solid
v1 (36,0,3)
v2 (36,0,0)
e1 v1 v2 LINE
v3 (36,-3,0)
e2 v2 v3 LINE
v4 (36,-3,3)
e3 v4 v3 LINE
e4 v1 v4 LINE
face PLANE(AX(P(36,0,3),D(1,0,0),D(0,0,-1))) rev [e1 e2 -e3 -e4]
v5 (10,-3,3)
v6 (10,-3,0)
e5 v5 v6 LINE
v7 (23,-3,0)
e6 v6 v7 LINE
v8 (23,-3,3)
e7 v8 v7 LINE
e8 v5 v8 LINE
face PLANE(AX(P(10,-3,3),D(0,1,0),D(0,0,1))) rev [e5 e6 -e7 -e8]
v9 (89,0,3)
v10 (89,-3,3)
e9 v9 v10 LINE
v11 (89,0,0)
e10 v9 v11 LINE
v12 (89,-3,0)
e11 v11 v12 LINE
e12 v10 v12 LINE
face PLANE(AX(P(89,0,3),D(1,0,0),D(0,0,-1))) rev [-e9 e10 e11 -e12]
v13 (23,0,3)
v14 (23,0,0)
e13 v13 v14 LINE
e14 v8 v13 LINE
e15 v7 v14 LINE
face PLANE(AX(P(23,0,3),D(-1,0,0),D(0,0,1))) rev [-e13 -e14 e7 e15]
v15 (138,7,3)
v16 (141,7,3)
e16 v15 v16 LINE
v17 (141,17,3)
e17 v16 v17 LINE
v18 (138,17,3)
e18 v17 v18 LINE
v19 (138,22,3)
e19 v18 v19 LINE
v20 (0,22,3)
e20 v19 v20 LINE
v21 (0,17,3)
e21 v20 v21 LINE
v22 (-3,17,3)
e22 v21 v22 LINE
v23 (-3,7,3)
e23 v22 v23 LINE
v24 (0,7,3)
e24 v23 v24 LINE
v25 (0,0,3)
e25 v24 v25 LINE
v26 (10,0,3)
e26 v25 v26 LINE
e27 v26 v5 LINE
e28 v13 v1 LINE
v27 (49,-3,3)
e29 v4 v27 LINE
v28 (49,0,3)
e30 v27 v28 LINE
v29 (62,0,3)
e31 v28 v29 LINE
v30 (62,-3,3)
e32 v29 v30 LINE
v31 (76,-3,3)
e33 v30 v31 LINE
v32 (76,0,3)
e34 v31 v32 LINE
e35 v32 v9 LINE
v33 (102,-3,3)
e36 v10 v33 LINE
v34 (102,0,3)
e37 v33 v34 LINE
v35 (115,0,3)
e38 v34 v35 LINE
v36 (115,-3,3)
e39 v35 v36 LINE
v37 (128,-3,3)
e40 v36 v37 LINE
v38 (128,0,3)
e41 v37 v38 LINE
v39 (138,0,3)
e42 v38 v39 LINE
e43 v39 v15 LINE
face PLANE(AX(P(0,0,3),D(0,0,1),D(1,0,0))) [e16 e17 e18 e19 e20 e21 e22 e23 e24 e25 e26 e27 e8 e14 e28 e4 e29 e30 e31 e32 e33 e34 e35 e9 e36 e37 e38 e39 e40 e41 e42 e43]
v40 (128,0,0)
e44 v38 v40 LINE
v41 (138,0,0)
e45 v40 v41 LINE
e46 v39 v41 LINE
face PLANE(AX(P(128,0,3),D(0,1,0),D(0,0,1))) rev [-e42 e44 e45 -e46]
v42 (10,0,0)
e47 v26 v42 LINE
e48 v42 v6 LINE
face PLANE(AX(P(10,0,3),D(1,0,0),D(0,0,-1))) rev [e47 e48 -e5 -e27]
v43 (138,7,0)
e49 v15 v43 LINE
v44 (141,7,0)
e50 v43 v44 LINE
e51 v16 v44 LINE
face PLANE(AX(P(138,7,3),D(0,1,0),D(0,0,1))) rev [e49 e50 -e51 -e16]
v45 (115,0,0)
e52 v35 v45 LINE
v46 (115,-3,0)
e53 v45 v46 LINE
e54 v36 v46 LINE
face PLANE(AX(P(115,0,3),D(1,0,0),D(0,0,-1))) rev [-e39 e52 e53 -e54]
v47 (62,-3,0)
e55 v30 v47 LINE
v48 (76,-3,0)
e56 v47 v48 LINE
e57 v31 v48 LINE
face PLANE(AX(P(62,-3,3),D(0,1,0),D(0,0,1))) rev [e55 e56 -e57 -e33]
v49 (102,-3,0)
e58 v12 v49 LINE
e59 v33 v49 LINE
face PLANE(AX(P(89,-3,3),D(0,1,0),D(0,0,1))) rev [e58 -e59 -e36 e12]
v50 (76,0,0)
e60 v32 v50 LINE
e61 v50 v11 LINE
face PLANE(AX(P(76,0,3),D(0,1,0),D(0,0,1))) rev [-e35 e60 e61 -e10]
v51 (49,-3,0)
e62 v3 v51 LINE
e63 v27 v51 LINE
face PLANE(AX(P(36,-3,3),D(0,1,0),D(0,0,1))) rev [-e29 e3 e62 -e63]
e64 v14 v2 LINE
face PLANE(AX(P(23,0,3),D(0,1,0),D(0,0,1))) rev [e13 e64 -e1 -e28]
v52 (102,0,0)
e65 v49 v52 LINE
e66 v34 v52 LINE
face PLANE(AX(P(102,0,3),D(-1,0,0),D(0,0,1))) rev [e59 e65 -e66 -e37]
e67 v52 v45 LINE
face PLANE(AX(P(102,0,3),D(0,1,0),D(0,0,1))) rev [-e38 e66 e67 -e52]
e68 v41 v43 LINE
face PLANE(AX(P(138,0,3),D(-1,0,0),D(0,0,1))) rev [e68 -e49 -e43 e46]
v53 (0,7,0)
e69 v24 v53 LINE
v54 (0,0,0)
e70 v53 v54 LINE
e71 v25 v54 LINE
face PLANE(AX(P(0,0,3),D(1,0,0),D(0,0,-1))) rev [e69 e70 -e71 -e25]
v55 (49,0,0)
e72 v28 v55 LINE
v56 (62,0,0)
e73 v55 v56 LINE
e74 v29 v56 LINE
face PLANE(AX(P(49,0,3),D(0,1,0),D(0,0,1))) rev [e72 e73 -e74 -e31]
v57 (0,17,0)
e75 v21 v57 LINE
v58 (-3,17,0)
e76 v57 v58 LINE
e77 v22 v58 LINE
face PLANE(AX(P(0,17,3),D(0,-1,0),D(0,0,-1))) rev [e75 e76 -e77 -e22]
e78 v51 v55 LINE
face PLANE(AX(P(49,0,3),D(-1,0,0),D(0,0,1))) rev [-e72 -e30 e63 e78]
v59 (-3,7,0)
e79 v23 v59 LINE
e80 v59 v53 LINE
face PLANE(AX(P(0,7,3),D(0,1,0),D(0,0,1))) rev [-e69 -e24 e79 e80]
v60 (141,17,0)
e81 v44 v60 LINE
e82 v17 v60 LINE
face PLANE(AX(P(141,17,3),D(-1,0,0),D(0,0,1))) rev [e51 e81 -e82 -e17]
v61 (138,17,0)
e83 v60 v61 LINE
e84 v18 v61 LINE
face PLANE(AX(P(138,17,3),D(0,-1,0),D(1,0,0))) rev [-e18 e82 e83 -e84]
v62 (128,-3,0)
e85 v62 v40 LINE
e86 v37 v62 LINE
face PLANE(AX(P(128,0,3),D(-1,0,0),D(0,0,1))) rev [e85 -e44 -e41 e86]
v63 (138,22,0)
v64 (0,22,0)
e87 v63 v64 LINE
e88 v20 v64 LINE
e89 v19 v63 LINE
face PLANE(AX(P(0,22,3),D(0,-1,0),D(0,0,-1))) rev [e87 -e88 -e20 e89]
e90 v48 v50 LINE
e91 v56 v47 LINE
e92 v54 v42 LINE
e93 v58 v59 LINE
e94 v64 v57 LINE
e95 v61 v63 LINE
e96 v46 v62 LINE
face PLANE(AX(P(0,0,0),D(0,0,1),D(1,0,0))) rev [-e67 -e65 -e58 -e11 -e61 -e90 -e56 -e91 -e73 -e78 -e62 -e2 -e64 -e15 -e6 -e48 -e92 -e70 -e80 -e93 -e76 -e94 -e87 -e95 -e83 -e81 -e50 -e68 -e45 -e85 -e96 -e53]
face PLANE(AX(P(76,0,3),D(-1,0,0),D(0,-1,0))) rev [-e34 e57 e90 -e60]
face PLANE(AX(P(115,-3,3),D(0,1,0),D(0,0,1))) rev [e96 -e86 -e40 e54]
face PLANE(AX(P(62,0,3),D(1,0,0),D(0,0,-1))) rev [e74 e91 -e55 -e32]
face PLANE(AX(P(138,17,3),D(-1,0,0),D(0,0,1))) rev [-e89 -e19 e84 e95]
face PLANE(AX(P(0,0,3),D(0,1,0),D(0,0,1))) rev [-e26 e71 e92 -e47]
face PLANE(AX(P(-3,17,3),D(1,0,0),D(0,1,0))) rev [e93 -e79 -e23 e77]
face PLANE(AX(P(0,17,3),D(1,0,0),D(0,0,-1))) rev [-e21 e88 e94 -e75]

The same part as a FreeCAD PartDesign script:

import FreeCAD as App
import Part
import Sketcher
from FreeCAD import Vector
Q = App.Units.Quantity


def add_polygon(sketch, points):
    """Adds a closed chain of lines whose ends are joined by coincident constraints."""
    first, n = sketch.GeometryCount, len(points)
    for a, b in zip(points, points[1:] + points[:1]):
        sketch.addGeometry(Part.LineSegment(App.Vector(*a, 0), App.Vector(*b, 0)), False)
    for i in range(n):
        sketch.addConstraint(Sketcher.Constraint("Coincident", first + i, 2, first + (i + 1) % n, 1))

doc = App.newDocument("Part")
body = doc.addObject("PartDesign::Body", "Body")

sketch1 = body.newObject("Sketcher::SketchObject", "Sketch")
sketch1.AttachmentSupport = (doc.getObject("XY_Plane"), [""])
sketch1.MapMode = "FlatFace"
add_polygon(sketch1, [(0, 22), (0, 17), (-3, 17), (-3, 7), (0, 7), (0, 0), (10, 0), (10, -3), (23, -3), (23, 0), (36, 0), (36, -3), (49, -3), (49, 0), (62, 0), (62, -3), (76, -3), (76, 0), (89, 0), (89, -3), (102, -3), (102, 0), (115, 0), (115, -3), (128, -3), (128, 0), (138, 0), (138, 7), (141, 7), (141, 17), (138, 17), (138, 22)])
sketch1.addConstraint([
    Sketcher.Constraint("Vertical", 0),
    Sketcher.Constraint("Horizontal", 1),
    Sketcher.Constraint("Vertical", 2),
    Sketcher.Constraint("Horizontal", 3),
    Sketcher.Constraint("Vertical", 4),
    Sketcher.Constraint("Horizontal", 5),
    Sketcher.Constraint("Vertical", 6),
    Sketcher.Constraint("Horizontal", 7),
    Sketcher.Constraint("Vertical", 8),
    Sketcher.Constraint("Horizontal", 9),
    Sketcher.Constraint("Vertical", 10),
    Sketcher.Constraint("Horizontal", 11),
    Sketcher.Constraint("Vertical", 12),
    Sketcher.Constraint("Horizontal", 13),
    Sketcher.Constraint("Vertical", 14),
    Sketcher.Constraint("Horizontal", 15),
    Sketcher.Constraint("Vertical", 16),
    Sketcher.Constraint("Horizontal", 17),
    Sketcher.Constraint("Vertical", 18),
    Sketcher.Constraint("Horizontal", 19),
    Sketcher.Constraint("Vertical", 20),
    Sketcher.Constraint("Horizontal", 21),
    Sketcher.Constraint("Vertical", 22),
    Sketcher.Constraint("Horizontal", 23),
    Sketcher.Constraint("Vertical", 24),
    Sketcher.Constraint("Horizontal", 25),
    Sketcher.Constraint("Vertical", 26),
    Sketcher.Constraint("Horizontal", 27),
    Sketcher.Constraint("Vertical", 28),
    Sketcher.Constraint("Horizontal", 29),
    Sketcher.Constraint("Vertical", 30),
    Sketcher.Constraint("Horizontal", 31),
    Sketcher.Constraint("Coincident", 4, 2, -1, 1),
    Sketcher.Constraint("PointOnObject", 0, 2, -2),
    Sketcher.Constraint("PointOnObject", 8, 2, -1),
    Sketcher.Constraint("PointOnObject", 12, 2, -1),
    Sketcher.Constraint("PointOnObject", 16, 2, -1),
    Sketcher.Constraint("PointOnObject", 20, 2, -1),
    Sketcher.Constraint("PointOnObject", 24, 2, -1),
    Sketcher.Constraint("Horizontal", 7, 2, 10, 2),
    Sketcher.Constraint("Horizontal", 11, 2, 14, 2),
    Sketcher.Constraint("Horizontal", 15, 2, 18, 2),
    Sketcher.Constraint("Horizontal", 19, 2, 22, 2),
    Sketcher.Constraint("Horizontal", 3, 2, 26, 2),
    Sketcher.Constraint("Horizontal", 1, 2, 28, 2),
    Sketcher.Constraint("Vertical", 26, 2, 29, 2),
    Sketcher.Constraint("Equal", 7, 9),
    Sketcher.Constraint("Equal", 9, 11),
    Sketcher.Constraint("Equal", 11, 13),
    Sketcher.Constraint("Equal", 13, 17),
    Sketcher.Constraint("Equal", 17, 19),
    Sketcher.Constraint("Equal", 19, 21),
    Sketcher.Constraint("Equal", 21, 23),
    Sketcher.Constraint("Equal", 5, 25),
    Sketcher.Constraint("Equal", 3, 27),
    Sketcher.Constraint("Equal", 25, 2),
    Sketcher.Constraint("Equal", 29, 6),
    Sketcher.Constraint("DistanceX", 1, 2, 1, 1, Q("3 mm")),
    Sketcher.Constraint("DistanceX", 5, 1, 5, 2, Q("10 mm")),
    Sketcher.Constraint("DistanceX", 7, 1, 7, 2, Q("13 mm")),
    Sketcher.Constraint("DistanceX", 15, 1, 15, 2, Q("14 mm")),
    Sketcher.Constraint("DistanceY", 0, 2, 0, 1, Q("5 mm")),
    Sketcher.Constraint("DistanceY", 4, 2, 4, 1, Q("7 mm")),
])
pad1 = body.newObject("PartDesign::Pad", "Pad")
pad1.Profile = sketch1
pad1.Length = 3

doc.recompute()
